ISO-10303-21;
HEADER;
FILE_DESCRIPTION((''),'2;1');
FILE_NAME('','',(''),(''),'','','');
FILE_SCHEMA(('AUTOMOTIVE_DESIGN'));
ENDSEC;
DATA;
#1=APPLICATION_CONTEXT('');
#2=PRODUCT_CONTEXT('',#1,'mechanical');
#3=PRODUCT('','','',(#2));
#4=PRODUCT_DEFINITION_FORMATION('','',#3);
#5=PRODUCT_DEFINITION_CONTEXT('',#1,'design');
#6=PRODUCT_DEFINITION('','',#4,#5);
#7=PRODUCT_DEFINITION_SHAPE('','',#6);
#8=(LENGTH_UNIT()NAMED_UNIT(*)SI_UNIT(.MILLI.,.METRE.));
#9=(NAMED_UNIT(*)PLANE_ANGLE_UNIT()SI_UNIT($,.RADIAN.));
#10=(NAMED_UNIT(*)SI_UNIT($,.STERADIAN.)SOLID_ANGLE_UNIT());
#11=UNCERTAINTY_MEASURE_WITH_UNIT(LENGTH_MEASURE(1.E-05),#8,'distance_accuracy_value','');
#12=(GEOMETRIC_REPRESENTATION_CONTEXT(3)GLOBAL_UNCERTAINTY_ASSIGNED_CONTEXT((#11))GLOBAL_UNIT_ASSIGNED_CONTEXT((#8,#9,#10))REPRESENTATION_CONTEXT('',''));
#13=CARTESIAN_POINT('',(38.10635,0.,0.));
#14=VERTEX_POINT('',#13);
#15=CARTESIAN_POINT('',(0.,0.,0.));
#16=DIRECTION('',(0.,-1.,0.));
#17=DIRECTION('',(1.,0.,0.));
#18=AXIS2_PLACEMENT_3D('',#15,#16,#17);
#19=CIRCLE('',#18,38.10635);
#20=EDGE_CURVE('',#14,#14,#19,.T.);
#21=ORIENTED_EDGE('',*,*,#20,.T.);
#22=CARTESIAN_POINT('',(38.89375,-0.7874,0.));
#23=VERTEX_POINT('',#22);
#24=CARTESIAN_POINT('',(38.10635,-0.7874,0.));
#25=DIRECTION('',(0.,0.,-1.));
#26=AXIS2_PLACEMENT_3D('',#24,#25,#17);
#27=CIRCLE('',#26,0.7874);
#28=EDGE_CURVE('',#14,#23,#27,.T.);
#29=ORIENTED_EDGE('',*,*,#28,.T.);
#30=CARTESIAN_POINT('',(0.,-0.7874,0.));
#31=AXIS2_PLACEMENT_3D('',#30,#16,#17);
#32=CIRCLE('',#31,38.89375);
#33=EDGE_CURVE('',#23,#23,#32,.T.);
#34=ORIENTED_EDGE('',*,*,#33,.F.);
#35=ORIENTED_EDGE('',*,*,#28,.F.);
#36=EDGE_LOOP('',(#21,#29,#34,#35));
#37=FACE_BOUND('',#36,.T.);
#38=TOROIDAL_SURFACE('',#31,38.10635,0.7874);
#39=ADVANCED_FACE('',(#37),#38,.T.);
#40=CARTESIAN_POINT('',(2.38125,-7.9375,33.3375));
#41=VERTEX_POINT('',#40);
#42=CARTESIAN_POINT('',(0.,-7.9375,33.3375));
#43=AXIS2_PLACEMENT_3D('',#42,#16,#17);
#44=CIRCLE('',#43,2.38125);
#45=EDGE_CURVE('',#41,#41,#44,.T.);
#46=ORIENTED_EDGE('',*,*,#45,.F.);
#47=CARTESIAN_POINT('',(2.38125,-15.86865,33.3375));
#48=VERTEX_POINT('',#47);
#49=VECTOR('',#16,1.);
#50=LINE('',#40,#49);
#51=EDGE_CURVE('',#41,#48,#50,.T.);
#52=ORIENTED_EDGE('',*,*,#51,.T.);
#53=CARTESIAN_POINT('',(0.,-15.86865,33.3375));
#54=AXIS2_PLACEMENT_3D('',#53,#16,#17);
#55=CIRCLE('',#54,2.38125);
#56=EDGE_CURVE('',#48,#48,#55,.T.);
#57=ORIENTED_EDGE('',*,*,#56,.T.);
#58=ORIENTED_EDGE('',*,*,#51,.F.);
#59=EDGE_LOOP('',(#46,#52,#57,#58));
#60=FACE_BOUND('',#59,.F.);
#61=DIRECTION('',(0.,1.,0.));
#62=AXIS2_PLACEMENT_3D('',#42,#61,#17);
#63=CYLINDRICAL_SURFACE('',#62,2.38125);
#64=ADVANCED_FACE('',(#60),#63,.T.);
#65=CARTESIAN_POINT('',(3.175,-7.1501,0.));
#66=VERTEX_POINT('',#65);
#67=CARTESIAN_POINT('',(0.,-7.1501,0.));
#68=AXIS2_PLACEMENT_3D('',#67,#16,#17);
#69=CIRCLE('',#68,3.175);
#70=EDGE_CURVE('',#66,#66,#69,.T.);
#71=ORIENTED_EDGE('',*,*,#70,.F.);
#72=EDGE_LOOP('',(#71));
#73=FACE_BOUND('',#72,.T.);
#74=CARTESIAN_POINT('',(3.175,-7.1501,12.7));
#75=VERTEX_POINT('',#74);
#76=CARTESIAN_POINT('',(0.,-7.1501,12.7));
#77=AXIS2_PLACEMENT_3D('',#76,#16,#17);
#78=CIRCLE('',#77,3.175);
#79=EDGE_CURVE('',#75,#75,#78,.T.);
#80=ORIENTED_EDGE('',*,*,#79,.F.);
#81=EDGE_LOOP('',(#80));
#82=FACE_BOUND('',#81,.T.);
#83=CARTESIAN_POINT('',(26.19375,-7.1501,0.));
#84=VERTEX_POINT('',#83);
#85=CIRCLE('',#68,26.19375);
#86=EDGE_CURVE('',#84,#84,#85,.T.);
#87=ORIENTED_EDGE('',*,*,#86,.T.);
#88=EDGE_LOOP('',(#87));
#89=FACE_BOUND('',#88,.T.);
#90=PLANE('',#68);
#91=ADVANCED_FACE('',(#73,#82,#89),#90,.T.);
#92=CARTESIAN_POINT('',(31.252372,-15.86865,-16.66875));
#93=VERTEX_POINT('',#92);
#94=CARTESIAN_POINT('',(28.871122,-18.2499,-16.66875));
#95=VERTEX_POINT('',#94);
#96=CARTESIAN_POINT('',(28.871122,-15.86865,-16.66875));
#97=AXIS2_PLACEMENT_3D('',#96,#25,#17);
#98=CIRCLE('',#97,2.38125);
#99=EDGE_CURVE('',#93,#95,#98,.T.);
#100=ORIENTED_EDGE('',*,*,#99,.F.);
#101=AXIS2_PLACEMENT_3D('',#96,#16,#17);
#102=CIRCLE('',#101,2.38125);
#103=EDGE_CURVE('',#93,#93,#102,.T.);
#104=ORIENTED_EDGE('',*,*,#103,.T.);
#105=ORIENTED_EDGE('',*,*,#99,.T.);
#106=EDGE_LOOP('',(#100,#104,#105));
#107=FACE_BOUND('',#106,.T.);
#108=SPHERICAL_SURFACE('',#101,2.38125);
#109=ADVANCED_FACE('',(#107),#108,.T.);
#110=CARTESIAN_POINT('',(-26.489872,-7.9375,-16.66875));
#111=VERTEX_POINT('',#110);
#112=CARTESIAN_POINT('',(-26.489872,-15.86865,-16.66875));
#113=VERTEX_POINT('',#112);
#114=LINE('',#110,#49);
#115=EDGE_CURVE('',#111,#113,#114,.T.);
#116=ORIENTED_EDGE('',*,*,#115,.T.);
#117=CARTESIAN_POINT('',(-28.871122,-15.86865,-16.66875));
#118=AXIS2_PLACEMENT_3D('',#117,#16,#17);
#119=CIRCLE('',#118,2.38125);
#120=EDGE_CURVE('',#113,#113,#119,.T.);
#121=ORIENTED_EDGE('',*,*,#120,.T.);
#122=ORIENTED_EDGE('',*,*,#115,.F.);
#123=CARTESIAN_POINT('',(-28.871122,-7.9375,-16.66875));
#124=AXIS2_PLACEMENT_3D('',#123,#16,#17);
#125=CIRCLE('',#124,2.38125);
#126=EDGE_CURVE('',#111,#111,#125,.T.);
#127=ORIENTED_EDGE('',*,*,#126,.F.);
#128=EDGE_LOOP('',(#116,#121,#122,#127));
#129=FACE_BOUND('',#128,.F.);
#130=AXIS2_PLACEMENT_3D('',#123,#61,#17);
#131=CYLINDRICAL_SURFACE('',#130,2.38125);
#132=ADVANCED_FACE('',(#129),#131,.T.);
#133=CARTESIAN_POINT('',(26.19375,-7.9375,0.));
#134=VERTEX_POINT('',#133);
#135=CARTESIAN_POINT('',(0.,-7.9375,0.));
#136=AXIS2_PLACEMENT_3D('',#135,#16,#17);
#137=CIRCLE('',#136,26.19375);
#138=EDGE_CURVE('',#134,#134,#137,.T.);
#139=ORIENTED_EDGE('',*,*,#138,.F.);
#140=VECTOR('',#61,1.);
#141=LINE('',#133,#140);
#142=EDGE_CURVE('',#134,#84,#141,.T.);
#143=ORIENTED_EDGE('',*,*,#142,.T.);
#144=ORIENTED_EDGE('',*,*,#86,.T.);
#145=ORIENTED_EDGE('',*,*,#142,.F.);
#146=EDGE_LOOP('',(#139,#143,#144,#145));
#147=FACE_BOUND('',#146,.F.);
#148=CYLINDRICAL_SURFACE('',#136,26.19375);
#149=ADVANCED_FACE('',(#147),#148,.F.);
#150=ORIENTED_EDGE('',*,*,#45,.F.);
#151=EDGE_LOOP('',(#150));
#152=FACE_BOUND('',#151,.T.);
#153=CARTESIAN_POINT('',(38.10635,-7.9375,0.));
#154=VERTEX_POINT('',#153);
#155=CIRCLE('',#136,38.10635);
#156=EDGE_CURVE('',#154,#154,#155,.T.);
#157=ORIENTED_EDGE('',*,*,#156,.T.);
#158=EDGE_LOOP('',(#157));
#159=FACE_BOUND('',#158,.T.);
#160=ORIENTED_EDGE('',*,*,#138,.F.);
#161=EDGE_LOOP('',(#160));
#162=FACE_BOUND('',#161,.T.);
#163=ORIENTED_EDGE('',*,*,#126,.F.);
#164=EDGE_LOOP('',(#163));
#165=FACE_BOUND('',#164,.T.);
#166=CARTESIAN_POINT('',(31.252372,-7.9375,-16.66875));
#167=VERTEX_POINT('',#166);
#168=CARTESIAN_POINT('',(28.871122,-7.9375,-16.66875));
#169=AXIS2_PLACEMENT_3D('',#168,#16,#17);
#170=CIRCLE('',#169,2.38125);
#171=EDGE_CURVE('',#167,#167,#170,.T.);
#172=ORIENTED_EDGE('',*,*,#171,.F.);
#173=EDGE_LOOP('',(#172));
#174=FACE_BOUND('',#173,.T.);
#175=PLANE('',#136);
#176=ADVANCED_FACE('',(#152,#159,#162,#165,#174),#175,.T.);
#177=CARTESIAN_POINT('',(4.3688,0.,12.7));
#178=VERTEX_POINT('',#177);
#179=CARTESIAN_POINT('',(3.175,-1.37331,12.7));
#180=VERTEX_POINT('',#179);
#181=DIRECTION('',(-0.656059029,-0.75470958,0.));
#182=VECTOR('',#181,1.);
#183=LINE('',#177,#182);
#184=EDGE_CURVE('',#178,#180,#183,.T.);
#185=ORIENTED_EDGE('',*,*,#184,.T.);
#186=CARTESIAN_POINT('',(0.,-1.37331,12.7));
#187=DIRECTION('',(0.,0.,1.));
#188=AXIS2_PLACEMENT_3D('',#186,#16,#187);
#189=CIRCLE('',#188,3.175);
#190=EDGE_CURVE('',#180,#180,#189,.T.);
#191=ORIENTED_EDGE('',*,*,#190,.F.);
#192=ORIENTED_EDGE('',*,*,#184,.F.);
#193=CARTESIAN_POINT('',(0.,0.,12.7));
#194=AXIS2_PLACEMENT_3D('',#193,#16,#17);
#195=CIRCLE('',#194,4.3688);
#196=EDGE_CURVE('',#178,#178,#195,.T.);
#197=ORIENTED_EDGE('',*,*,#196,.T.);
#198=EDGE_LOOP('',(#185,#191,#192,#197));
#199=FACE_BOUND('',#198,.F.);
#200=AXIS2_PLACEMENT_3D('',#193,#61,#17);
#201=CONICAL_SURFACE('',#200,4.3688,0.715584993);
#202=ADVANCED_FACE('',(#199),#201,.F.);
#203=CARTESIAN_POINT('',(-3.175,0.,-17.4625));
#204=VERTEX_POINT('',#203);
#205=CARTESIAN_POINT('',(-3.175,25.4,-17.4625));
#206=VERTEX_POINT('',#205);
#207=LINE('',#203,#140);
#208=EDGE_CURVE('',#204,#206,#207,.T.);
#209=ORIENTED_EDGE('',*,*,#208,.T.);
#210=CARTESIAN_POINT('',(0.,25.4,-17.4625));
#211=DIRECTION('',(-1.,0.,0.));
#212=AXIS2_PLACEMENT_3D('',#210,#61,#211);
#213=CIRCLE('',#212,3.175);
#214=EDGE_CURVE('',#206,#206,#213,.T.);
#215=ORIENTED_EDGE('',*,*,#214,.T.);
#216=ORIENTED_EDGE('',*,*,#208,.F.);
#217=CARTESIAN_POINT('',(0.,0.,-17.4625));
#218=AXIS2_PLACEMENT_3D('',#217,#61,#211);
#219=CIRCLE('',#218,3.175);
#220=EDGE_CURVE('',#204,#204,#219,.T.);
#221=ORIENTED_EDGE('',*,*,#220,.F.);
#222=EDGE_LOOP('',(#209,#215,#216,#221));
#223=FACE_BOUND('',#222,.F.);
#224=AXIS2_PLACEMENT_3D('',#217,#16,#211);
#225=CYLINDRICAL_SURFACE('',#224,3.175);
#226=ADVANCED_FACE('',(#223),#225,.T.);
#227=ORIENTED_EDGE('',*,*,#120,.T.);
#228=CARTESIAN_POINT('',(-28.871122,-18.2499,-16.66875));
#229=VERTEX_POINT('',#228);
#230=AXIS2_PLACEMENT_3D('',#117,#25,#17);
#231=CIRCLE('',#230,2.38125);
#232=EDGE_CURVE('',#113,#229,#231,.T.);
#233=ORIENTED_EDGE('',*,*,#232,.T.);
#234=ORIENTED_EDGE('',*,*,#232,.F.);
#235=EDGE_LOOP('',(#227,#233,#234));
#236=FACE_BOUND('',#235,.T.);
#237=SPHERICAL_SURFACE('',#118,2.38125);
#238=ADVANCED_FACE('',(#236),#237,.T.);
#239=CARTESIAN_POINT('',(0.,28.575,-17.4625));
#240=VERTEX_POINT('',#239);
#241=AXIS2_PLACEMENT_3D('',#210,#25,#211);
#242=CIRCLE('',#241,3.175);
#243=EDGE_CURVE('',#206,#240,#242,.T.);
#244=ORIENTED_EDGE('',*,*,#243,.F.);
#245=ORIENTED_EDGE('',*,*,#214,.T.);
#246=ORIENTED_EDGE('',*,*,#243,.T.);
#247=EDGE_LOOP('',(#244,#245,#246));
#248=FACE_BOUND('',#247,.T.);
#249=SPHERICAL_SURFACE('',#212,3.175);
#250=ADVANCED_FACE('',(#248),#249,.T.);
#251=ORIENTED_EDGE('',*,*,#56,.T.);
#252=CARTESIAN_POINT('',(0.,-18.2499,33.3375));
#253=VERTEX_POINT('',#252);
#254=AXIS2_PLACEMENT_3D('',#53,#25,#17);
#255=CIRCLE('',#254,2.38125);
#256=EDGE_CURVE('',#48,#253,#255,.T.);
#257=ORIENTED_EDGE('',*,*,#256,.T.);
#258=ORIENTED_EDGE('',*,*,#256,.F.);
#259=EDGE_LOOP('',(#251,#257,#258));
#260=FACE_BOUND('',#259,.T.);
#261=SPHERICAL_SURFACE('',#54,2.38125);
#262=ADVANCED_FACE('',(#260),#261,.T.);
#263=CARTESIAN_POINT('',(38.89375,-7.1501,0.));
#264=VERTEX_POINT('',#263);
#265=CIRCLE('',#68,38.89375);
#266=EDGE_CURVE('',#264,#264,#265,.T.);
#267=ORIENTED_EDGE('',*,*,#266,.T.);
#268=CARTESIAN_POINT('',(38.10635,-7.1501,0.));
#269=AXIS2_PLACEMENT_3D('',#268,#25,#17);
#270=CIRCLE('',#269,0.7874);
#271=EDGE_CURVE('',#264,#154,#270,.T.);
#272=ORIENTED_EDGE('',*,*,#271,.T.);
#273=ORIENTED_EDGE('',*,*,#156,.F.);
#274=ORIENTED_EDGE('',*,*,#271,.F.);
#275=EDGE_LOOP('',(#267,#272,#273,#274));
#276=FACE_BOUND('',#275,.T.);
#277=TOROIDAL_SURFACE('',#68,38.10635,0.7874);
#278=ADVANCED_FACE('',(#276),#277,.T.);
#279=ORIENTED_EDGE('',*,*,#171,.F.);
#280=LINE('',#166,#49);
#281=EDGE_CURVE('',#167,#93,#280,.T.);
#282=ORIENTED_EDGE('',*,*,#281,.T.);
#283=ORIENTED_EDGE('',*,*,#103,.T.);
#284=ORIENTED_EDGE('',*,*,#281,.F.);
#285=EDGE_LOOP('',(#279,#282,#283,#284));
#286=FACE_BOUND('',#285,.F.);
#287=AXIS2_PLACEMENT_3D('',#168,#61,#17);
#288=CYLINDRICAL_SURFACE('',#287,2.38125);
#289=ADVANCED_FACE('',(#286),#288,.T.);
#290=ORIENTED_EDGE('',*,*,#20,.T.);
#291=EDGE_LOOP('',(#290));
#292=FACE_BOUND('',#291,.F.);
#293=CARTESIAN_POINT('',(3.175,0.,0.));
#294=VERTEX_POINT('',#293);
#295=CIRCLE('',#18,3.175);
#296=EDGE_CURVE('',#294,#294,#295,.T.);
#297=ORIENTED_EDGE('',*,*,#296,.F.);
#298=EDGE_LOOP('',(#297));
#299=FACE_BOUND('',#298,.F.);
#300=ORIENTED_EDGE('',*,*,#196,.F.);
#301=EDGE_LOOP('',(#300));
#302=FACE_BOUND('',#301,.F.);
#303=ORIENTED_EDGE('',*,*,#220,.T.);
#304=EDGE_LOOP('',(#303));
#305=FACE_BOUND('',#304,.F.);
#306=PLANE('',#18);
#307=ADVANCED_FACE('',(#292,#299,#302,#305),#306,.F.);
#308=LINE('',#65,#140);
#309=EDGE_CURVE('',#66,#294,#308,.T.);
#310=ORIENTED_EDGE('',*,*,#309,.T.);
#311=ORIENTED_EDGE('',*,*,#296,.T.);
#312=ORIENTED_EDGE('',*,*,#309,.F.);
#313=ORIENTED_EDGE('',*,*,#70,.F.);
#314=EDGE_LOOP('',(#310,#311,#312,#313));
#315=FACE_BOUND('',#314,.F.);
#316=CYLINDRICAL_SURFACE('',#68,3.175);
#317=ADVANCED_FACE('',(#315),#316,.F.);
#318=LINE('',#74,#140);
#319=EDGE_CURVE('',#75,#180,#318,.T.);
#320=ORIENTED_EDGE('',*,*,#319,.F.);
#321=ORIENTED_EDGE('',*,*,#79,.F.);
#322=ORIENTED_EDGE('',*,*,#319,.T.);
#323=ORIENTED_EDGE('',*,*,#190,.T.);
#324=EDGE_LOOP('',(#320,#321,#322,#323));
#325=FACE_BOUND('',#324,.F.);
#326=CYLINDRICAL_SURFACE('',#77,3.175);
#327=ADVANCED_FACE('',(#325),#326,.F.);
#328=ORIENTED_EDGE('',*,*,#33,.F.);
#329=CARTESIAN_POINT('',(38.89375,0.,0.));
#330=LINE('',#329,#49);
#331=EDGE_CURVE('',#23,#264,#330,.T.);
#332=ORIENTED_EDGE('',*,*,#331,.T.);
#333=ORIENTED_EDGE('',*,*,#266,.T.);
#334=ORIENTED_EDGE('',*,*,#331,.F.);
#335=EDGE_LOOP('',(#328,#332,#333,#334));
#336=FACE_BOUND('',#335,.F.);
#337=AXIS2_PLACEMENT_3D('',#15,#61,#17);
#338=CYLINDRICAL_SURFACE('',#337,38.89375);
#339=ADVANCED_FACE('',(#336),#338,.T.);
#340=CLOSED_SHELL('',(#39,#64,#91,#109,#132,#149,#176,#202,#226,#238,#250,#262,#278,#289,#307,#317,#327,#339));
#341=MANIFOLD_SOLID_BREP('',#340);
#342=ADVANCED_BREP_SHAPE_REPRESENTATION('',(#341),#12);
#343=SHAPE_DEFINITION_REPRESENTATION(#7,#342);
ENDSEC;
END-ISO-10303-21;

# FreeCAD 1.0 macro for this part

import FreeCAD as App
import Part
import Sketcher
Q = App.Units.Quantity


def edges_at(feature, points):
    """Names of the edges that pass closest to the given points."""
    edges = feature.Shape.Edges
    near = lambda p: min(range(len(edges)), key=lambda i: edges[i].distToShape(Part.Vertex(*p))[0])
    return sorted({f"Edge{near(p) + 1}" for p in points})

doc = App.newDocument("Part")
body = doc.addObject("PartDesign::Body", "Body")

sketch1 = body.newObject("Sketcher::SketchObject", "Sketch")
sketch1.AttachmentSupport = (doc.getObject("XZ_Plane"), [""])
sketch1.MapMode = "FlatFace"
sketch1.addGeometry(Part.Circle(App.Vector(0, 0, 0), App.Vector(0, 0, 1), 39), False)
sketch1.addConstraint([
    Sketcher.Constraint("Coincident", 0, 3, -1, 1),
    Sketcher.Constraint("Diameter", 0, Q("3.0625 in")),
])
pad1 = body.newObject("PartDesign::Pad", "Pad")
pad1.Profile = sketch1
pad1.Length = Q("0.3125 in")

sketch2 = body.newObject("Sketcher::SketchObject", "Sketch001")
sketch2.AttachmentSupport = (doc.getObject("XZ_Plane"), [""])
sketch2.MapMode = "FlatFace"
sketch2.AttachmentOffset = App.Placement(App.Vector(0, 0, 0.3125 * 25.4), App.Rotation())
sketch2.addGeometry(Part.Circle(App.Vector(0, 0, 0), App.Vector(0, 0, 1), 26), False)
sketch2.addConstraint([
    Sketcher.Constraint("Coincident", 0, 3, -1, 1),
    Sketcher.Constraint("Diameter", 0, Q("2.0625 in")),
])
pocket1 = body.newObject("PartDesign::Pocket", "Pocket")
pocket1.Profile = sketch2
pocket1.Length = Q("0.031 in")

sketch3 = body.newObject("Sketcher::SketchObject", "Sketch002")
sketch3.AttachmentSupport = (doc.getObject("XZ_Plane"), [""])
sketch3.MapMode = "FlatFace"
sketch3.AttachmentOffset = App.Placement(App.Vector(0, 0, 0.3125 * 25.4), App.Rotation())
sketch3.addGeometry([
    Part.Circle(App.Vector(0, 33.3, 0), App.Vector(0, 0, 1), 2.4),
    Part.Circle(App.Vector(-28.9, -16.7, 0), App.Vector(0, 0, 1), 2.4),
    Part.Circle(App.Vector(28.9, -16.7, 0), App.Vector(0, 0, 1), 2.4),
], False)
sketch3.addConstraint([
    Sketcher.Constraint("Equal", 0, 1),
    Sketcher.Constraint("Equal", 1, 2),
    Sketcher.Constraint("Symmetric", 1, 3, 2, 3, -2),
    Sketcher.Constraint("PointOnObject", 0, 3, -2),
    Sketcher.Constraint("Diameter", 0, Q("0.1875 in")),
    Sketcher.Constraint("DistanceY", -1, 1, 0, 3, Q("1.3125 in")),
    Sketcher.Constraint("DistanceY", 1, 3, -1, 1, Q("0.65625 in")),
    Sketcher.Constraint("DistanceX", 1, 3, -1, 1, Q("28.871122 mm")),
])
pad2 = body.newObject("PartDesign::Pad", "Pad001")
pad2.Profile = sketch3
pad2.Length = Q("0.406 in")
doc.recompute()

fillet = body.newObject("PartDesign::Fillet", "Fillet")
fillet.Base = (pad2, edges_at(pad2, [(-2.381, -18.25, 33.337), (26.49, -18.25, -16.669), (-31.252, -18.25, -16.669)]))
fillet.Radius = Q("0.09375 in")

sketch4 = body.newObject("Sketcher::SketchObject", "Sketch003")
sketch4.AttachmentSupport = (doc.getObject("XZ_Plane"), [""])
sketch4.MapMode = "FlatFace"
sketch4.AttachmentOffset = App.Placement(App.Vector(0, 0, 0.2815 * 25.4), App.Rotation())
sketch4.addGeometry([
    Part.Circle(App.Vector(0, 0, 0), App.Vector(0, 0, 1), 3.2),
    Part.Circle(App.Vector(0, 12.7, 0), App.Vector(0, 0, 1), 3.2),
], False)
sketch4.addConstraint([
    Sketcher.Constraint("Coincident", 0, 3, -1, 1),
    Sketcher.Constraint("Equal", 0, 1),
    Sketcher.Constraint("PointOnObject", 1, 3, -2),
    Sketcher.Constraint("Diameter", 0, Q("0.25 in")),
    Sketcher.Constraint("DistanceY", -1, 1, 1, 3, Q("0.5 in")),
])
pocket2 = body.newObject("PartDesign::Pocket", "Pocket001")
pocket2.Profile = sketch4
pocket2.Type = "ThroughAll"

sketch5 = body.newObject("Sketcher::SketchObject", "Sketch004")
sketch5.AttachmentSupport = (doc.getObject("XZ_Plane"), [""])
sketch5.MapMode = "FlatFace"
sketch5.addGeometry(Part.Circle(App.Vector(0, 12.7, 0), App.Vector(0, 0, 1), 3.2), False)
sketch5.addConstraint([
    Sketcher.Constraint("PointOnObject", 0, 3, -2),
    Sketcher.Constraint("Diameter", 0, Q("0.25 in")),
    Sketcher.Constraint("DistanceY", -1, 1, 0, 3, Q("0.5 in")),
])
doc.recompute()
hole = body.newObject("PartDesign::Hole", "Hole")
hole.Profile = sketch5
hole.ThreadType = "None"
hole.Diameter = Q("0.25 in")
hole.DepthType = "ThroughAll"
hole.HoleCutType = "Countersink"
hole.HoleCutDiameter = Q("0.344 in")
hole.HoleCutCountersinkAngle = 82
hole.Reversed = True

sketch6 = body.newObject("Sketcher::SketchObject", "Sketch005")
sketch6.AttachmentSupport = (doc.getObject("XZ_Plane"), [""])
sketch6.MapMode = "FlatFace"
sketch6.addGeometry(Part.Circle(App.Vector(0, -17.5, 0), App.Vector(0, 0, 1), 3.2), False)
sketch6.addConstraint([
    Sketcher.Constraint("PointOnObject", 0, 3, -2),
    Sketcher.Constraint("Diameter", 0, Q("0.25 in")),
    Sketcher.Constraint("DistanceY", 0, 3, -1, 1, Q("0.6875 in")),
])
pad3 = body.newObject("PartDesign::Pad", "Pad002")
pad3.Profile = sketch6
pad3.Length = Q("1.125 in")
pad3.Reversed = True
doc.recompute()

fillet2 = body.newObject("PartDesign::Fillet", "Fillet001")
fillet2.Base = (pad3, edges_at(pad3, [(3.175, 28.575, -17.462)]))
fillet2.Radius = Q("0.125 in")
doc.recompute()

fillet3 = body.newObject("PartDesign::Fillet", "Fillet002")
fillet3.Base = (fillet2, edges_at(fillet2, [(-38.894, -7.938, 0), (-38.894, 0, 0)]))
fillet3.Radius = Q("0.031 in")

doc.recompute()
